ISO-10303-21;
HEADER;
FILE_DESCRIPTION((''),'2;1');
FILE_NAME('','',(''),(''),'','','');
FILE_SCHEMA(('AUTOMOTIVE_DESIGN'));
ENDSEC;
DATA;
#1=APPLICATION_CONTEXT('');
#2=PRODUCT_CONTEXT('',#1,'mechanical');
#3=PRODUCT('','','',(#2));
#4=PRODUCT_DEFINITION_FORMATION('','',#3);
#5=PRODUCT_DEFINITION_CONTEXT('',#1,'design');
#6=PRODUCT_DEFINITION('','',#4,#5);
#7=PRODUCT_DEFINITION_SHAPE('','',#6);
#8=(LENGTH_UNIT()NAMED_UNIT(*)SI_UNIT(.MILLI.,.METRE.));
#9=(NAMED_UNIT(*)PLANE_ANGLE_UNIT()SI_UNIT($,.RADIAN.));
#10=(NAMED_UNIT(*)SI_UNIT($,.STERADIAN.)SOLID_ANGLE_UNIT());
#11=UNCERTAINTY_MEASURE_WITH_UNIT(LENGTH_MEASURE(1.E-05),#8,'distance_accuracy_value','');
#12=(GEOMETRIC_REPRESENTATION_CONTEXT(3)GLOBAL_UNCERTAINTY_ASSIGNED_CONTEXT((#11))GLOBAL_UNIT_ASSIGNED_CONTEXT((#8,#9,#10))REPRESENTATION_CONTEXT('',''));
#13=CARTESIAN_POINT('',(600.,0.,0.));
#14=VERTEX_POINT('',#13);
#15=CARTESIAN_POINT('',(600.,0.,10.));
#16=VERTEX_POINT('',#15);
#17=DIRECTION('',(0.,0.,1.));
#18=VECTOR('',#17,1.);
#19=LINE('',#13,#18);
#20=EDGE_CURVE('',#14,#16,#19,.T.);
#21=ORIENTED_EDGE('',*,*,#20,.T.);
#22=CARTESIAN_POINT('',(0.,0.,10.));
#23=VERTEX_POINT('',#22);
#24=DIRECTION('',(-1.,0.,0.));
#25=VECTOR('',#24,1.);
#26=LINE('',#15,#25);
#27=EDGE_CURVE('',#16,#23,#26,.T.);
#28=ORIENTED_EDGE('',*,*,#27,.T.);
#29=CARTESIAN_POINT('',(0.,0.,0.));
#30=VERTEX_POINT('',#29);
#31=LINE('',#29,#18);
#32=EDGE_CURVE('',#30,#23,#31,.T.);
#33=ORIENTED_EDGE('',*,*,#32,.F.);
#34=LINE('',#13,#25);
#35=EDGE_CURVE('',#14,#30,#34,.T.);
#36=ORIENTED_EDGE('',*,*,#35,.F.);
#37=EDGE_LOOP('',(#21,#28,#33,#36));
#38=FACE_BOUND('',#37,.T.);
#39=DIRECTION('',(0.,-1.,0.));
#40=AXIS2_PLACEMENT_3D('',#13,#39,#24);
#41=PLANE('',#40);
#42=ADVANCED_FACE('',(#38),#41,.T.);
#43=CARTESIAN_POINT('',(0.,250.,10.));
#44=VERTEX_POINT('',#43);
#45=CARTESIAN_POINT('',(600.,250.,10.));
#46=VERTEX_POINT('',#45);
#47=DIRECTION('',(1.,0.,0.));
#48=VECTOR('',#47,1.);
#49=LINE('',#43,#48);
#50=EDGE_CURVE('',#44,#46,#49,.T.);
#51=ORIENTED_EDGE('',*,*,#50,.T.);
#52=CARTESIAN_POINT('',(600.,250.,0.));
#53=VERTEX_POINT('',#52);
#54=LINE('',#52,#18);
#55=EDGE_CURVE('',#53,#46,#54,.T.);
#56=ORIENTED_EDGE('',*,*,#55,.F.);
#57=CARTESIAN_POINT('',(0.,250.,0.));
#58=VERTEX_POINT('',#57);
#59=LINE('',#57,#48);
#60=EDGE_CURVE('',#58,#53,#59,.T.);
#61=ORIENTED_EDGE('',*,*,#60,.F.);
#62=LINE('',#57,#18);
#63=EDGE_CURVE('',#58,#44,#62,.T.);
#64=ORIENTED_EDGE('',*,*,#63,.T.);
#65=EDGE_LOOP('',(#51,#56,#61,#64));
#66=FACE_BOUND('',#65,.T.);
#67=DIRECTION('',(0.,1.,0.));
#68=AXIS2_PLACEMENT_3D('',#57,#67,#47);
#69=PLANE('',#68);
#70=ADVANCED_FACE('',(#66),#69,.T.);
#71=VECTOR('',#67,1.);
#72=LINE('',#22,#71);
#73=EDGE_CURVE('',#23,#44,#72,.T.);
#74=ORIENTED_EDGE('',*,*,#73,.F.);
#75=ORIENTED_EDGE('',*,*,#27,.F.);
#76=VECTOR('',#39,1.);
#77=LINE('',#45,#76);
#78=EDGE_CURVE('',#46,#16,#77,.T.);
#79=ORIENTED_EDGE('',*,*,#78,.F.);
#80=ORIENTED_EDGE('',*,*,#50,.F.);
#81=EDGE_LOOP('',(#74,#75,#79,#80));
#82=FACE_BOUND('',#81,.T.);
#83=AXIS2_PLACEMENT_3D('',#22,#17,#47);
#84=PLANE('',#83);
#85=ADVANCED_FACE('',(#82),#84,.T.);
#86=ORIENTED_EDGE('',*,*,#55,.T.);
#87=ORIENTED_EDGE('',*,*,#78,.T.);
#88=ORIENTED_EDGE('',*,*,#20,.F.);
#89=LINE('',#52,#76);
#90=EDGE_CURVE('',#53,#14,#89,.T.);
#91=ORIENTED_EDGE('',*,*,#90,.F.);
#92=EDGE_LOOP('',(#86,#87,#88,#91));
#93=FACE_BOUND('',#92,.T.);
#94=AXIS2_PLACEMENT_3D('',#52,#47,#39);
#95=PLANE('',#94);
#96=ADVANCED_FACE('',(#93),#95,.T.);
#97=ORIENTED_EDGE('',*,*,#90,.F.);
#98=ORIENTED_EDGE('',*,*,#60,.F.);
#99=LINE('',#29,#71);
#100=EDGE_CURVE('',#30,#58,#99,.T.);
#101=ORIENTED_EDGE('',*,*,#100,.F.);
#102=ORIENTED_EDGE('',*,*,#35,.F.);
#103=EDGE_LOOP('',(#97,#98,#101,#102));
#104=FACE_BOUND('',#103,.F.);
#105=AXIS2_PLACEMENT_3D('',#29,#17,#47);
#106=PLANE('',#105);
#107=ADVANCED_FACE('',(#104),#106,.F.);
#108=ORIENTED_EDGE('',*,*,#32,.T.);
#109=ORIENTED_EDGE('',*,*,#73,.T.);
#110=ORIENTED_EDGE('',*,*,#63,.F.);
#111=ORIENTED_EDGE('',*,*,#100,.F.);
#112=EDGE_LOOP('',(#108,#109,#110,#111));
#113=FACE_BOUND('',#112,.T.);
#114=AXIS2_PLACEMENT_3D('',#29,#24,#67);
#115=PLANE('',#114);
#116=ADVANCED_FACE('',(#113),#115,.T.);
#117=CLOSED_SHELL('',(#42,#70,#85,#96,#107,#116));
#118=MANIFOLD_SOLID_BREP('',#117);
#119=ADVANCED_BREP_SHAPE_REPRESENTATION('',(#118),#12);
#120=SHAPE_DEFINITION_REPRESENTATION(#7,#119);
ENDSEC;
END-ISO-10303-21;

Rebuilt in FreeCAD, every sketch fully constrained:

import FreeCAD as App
import Part
import Sketcher
Q = App.Units.Quantity

doc = App.newDocument("Part")
body = doc.addObject("PartDesign::Body", "Body")

sketch1 = body.newObject("Sketcher::SketchObject", "Sketch")
sketch1.AttachmentSupport = (doc.getObject("XY_Plane"), [""])
sketch1.MapMode = "FlatFace"
sketch1.addGeometry([
    Part.LineSegment(App.Vector(0, 250, 0), App.Vector(0, 0, 0)),
    Part.LineSegment(App.Vector(0, 0, 0), App.Vector(600, 0, 0)),
    Part.LineSegment(App.Vector(600, 0, 0), App.Vector(600, 250, 0)),
    Part.LineSegment(App.Vector(600, 250, 0), App.Vector(0, 250, 0)),
], False)
sketch1.addConstraint([
    Sketcher.Constraint("Coincident", 0, 2, 1, 1),
    Sketcher.Constraint("Coincident", 1, 2, 2, 1),
    Sketcher.Constraint("Coincident", 2, 2, 3, 1),
    Sketcher.Constraint("Coincident", 3, 2, 0, 1),
    Sketcher.Constraint("Vertical", 0),
    Sketcher.Constraint("Horizontal", 1),
    Sketcher.Constraint("Vertical", 2),
    Sketcher.Constraint("Horizontal", 3),
    Sketcher.Constraint("Coincident", 0, 2, -1, 1),
    Sketcher.Constraint("DistanceX", 1, 1, 1, 2, Q("600 mm")),
    Sketcher.Constraint("DistanceY", 0, 2, 0, 1, Q("250 mm")),
])
pad1 = body.newObject("PartDesign::Pad", "Pad")
pad1.Profile = sketch1
pad1.Length = 10

doc.recompute()
